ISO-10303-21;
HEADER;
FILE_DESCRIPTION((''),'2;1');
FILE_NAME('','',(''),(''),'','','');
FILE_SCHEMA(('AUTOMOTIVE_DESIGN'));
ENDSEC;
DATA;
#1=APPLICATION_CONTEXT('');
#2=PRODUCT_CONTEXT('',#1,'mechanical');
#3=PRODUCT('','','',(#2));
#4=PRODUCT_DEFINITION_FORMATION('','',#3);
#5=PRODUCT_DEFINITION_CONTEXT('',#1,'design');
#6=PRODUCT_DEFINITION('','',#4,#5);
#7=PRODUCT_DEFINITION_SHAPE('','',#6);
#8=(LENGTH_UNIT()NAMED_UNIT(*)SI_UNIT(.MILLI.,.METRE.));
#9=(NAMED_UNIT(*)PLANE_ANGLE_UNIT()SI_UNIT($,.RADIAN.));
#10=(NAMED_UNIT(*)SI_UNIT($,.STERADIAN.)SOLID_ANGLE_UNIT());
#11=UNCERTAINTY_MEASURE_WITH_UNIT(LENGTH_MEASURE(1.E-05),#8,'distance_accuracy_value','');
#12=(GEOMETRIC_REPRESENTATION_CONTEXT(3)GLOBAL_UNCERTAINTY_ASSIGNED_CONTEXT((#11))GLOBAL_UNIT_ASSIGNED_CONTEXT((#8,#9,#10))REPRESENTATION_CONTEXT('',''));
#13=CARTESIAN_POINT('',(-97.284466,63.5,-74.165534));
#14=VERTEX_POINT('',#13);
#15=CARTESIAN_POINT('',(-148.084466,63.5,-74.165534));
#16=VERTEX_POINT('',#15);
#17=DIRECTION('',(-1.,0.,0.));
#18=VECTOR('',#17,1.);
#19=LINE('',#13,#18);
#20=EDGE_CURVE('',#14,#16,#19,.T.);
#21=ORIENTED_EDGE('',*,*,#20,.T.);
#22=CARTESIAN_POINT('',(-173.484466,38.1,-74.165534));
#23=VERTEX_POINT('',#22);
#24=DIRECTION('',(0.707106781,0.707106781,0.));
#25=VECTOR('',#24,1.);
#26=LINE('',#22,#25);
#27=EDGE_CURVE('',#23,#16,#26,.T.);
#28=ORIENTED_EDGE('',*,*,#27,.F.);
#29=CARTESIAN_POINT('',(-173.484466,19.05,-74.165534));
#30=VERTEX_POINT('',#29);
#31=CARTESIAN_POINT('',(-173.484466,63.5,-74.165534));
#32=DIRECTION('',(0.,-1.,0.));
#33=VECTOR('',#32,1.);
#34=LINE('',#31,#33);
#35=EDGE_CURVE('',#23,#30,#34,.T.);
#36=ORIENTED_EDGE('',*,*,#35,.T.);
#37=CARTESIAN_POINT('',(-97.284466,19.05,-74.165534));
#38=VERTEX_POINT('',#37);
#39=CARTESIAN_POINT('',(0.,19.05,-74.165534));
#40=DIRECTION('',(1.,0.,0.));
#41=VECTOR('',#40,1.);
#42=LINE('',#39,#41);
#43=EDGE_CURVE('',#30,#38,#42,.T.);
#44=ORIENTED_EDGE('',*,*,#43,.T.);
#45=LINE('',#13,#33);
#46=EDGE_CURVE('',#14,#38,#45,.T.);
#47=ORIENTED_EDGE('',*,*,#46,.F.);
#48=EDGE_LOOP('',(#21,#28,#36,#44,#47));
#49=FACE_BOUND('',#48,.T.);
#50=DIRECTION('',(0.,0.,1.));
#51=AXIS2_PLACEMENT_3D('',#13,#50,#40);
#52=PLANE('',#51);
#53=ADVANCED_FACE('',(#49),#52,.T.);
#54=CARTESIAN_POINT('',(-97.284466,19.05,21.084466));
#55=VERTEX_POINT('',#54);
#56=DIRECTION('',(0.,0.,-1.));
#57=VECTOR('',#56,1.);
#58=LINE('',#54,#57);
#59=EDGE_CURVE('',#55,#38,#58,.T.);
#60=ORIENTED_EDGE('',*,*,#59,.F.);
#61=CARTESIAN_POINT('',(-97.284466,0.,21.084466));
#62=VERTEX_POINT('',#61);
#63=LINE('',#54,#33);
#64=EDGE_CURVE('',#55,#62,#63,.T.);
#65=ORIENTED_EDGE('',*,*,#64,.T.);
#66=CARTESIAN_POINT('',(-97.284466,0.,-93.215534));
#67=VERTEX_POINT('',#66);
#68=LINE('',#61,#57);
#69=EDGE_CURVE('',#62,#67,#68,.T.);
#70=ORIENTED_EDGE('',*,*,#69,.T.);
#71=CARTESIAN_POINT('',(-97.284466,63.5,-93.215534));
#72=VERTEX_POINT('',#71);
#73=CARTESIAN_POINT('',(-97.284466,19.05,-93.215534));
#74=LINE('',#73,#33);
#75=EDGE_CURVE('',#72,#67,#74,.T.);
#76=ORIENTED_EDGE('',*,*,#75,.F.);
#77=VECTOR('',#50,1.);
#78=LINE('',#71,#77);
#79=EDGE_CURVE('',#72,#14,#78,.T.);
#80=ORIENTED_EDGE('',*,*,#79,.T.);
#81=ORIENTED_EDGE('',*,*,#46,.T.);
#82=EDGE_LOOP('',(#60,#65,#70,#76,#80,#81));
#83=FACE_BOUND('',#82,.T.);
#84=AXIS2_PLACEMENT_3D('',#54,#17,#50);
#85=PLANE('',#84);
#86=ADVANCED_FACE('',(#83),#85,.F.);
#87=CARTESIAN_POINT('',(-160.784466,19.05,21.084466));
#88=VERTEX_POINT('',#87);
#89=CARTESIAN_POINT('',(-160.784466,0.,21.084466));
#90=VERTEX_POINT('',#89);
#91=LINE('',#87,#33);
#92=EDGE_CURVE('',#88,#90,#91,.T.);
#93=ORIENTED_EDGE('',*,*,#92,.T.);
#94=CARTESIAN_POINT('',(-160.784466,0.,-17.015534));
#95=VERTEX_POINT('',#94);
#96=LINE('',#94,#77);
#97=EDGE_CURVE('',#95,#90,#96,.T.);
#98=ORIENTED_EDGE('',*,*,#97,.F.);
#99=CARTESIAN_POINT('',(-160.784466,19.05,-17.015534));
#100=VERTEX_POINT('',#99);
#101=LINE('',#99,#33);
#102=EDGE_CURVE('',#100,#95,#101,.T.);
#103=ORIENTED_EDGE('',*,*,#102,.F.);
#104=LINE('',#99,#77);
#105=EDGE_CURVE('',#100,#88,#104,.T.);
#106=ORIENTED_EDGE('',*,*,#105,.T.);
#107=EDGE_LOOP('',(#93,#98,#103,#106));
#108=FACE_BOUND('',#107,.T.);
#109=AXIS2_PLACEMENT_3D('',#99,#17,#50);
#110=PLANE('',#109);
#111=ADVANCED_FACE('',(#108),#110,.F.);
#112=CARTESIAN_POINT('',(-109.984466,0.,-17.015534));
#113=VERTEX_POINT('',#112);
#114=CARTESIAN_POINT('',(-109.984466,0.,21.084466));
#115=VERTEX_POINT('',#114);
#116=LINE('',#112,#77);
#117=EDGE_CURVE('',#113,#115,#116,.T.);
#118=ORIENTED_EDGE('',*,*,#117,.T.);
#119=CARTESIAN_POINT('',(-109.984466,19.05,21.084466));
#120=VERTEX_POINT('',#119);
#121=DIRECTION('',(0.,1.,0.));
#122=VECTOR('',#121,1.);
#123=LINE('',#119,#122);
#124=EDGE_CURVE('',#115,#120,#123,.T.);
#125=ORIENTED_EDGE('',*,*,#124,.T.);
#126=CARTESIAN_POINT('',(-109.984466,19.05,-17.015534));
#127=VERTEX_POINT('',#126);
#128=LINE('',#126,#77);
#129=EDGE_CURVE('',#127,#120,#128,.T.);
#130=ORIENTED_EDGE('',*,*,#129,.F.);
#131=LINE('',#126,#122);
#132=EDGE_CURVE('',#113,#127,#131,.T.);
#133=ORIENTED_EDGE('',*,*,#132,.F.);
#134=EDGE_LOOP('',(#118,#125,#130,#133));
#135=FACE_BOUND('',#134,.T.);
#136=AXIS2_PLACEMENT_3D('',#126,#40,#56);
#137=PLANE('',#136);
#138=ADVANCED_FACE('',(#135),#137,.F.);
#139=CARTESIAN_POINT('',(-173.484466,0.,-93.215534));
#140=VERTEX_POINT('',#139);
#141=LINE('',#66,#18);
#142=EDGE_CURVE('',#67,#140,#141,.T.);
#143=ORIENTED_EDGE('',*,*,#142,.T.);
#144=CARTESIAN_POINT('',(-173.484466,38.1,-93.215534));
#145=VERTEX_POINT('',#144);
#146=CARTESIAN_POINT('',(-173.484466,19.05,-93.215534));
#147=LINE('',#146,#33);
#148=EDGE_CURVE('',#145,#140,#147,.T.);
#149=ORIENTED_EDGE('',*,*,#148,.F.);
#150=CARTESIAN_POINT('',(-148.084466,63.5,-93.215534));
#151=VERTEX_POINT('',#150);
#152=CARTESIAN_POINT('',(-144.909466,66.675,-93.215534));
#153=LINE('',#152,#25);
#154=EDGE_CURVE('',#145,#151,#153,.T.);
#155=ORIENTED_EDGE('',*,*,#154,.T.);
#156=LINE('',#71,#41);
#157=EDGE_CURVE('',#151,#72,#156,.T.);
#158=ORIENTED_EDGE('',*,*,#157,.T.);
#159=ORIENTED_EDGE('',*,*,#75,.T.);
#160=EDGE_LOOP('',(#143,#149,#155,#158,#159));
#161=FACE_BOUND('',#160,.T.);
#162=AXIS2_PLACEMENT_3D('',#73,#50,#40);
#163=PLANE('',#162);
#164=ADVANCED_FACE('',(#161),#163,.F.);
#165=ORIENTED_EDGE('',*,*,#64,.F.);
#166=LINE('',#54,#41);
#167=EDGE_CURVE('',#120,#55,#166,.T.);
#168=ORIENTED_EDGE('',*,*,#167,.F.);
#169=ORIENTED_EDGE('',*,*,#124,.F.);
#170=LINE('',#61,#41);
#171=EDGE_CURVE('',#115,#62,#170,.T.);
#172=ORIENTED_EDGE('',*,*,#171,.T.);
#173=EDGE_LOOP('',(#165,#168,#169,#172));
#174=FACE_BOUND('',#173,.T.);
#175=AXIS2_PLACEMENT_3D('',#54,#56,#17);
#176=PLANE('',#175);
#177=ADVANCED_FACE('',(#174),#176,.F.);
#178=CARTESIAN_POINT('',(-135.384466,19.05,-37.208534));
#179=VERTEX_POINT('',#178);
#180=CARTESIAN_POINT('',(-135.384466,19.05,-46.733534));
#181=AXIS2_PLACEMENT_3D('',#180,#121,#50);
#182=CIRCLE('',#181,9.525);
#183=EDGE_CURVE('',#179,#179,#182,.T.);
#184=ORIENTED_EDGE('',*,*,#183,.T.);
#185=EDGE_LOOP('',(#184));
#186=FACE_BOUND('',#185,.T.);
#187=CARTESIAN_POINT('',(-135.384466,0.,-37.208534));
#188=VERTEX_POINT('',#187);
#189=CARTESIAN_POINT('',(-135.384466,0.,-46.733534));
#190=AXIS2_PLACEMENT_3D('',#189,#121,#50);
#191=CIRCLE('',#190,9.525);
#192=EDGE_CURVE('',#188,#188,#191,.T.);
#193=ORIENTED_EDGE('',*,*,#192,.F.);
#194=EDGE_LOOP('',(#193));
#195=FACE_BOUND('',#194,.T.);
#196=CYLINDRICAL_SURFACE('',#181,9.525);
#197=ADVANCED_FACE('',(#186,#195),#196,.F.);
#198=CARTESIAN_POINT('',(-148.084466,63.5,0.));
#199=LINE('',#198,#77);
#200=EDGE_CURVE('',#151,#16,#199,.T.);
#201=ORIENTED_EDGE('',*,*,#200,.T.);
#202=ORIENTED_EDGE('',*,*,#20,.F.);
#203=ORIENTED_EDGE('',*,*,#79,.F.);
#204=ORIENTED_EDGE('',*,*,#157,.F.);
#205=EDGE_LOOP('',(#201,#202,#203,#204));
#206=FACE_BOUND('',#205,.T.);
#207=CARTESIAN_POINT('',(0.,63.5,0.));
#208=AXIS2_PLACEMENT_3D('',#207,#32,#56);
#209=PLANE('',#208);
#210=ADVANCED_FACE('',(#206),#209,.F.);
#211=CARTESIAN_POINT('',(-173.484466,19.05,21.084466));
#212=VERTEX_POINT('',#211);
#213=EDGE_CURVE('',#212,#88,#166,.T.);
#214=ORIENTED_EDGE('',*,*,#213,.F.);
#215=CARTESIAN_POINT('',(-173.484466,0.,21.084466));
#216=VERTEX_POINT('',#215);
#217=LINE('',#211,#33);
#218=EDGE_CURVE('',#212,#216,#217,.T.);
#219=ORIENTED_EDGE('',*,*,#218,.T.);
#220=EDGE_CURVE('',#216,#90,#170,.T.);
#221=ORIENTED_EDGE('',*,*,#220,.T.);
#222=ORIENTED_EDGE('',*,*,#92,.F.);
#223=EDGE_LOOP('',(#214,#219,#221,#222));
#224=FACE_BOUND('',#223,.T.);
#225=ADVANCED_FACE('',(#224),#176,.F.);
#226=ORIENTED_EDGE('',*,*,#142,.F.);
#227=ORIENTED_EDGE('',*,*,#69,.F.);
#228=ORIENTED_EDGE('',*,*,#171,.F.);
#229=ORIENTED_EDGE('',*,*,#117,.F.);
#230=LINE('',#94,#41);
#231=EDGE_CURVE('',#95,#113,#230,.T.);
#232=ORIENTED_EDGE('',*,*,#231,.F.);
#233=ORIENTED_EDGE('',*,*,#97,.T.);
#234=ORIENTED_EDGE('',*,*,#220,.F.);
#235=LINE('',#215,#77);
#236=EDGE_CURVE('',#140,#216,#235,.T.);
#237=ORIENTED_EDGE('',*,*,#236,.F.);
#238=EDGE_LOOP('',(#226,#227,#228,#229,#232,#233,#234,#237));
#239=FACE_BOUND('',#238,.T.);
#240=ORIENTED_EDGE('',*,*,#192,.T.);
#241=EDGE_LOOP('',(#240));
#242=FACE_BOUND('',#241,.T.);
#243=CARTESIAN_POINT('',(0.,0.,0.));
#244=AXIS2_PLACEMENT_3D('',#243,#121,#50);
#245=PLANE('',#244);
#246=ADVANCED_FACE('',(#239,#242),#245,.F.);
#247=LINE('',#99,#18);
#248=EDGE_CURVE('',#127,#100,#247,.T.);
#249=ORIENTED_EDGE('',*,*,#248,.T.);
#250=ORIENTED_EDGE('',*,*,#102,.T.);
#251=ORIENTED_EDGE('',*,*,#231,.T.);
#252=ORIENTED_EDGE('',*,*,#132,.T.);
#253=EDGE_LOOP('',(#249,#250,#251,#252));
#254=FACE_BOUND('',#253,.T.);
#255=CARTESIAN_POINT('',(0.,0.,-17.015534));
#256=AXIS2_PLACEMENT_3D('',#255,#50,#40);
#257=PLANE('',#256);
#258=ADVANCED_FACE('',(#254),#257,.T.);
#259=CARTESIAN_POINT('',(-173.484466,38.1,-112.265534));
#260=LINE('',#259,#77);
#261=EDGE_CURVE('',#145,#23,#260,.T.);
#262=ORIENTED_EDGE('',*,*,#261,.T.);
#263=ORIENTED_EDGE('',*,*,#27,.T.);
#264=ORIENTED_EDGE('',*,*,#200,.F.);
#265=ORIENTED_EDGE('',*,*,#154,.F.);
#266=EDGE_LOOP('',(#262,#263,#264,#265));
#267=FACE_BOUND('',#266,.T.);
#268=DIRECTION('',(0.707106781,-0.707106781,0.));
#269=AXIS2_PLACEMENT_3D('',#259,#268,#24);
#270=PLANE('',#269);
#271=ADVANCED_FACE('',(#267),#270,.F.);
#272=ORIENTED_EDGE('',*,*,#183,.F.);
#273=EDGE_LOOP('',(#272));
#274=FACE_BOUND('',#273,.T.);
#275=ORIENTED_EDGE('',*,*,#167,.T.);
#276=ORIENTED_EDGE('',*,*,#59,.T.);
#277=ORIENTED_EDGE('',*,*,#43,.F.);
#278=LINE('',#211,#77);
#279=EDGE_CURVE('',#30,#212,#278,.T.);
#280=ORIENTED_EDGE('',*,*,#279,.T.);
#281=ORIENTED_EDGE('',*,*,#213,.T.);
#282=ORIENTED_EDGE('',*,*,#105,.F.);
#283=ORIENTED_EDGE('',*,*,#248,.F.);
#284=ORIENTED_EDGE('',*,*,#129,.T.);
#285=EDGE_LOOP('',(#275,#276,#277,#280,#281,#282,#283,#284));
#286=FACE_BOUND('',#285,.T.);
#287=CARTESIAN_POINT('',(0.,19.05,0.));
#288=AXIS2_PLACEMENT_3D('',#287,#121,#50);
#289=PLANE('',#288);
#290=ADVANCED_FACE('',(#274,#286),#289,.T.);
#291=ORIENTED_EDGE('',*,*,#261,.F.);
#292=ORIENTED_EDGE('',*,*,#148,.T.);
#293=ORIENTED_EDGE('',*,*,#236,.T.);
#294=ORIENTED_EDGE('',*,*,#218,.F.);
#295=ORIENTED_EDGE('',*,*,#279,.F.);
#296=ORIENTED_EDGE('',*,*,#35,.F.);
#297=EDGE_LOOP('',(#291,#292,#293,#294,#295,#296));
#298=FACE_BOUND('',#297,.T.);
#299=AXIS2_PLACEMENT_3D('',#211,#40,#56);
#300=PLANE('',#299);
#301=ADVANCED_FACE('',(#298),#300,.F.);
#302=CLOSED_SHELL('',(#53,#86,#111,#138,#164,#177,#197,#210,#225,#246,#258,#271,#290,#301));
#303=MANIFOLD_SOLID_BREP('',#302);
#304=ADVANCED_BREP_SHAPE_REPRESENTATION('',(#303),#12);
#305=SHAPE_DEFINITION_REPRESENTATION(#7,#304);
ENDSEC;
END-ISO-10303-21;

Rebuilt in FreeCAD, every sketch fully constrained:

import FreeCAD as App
import Part
import Sketcher

V = App.Vector
Q = App.Units.Quantity

doc = App.newDocument("Part")
params = doc.addObject("Spreadsheet::Sheet", "Params")
for row, (alias, value) in enumerate([
    ("sketch1_width", "3 in"),
    ("sketch1_height", "4.5 in"),
    ("pad1_length", "0.75 in"),
    ("sketch2_width", "3 in"),
    ("sketch2_height", "0.75 in"),
    ("pad2_length", "2.5 in"),
    ("sketch3_diameter", "0.75 in"),
    ("hole_diameter", "0.75 in"),
    ("sketch4_width", "2 in"),
    ("sketch4_height", "0.75 in"),
    ("pad3_length", "1.5 in"),
    ("sketch5_width", "2 in"),
    ("sketch5_height", "0.75 in"),
    ("pocket1_length", "1.5 in"),
    ("sketch6_width", "1 in"),
    ("pocket2_length", "1.5 in"),
], start=1):
    params.set(f"A{row}", alias)
    params.set(f"B{row}", "=" + value)
    params.setAlias(f"B{row}", alias)

body = doc.addObject("PartDesign::Body", "Body")

# Sketch on XZ plane
sketch1 = body.newObject("Sketcher::SketchObject", "Sketch")
sketch1.AttachmentSupport = (doc.getObject("XZ_Plane"), [""])
sketch1.MapMode = "FlatFace"
sketch1.addGeometry([
    Part.LineSegment(V(-173, -93, 0), V(-173, 21, 0)),
    Part.LineSegment(V(-173, 21, 0), V(-97, 21, 0)),
    Part.LineSegment(V(-97, 21, 0), V(-97, -93, 0)),
    Part.LineSegment(V(-97, -93, 0), V(-173, -93, 0)),
], False)
sketch1.addConstraint([
    Sketcher.Constraint("Coincident", 0, 2, 1, 1),
    Sketcher.Constraint("Coincident", 1, 2, 2, 1),
    Sketcher.Constraint("Coincident", 2, 2, 3, 1),
    Sketcher.Constraint("Coincident", 3, 2, 0, 1),
    Sketcher.Constraint("Vertical", 0),
    Sketcher.Constraint("Horizontal", 1),
    Sketcher.Constraint("Vertical", 2),
    Sketcher.Constraint("Horizontal", 3),
    Sketcher.Constraint("DistanceX", 1, 1, 1, 2, Q("3 in")),
    Sketcher.Constraint("DistanceY", 0, 1, 0, 2, Q("4.5 in")),
    Sketcher.Constraint("DistanceX", 0, 2, -1, 1, Q("173.484466 mm")),
    Sketcher.Constraint("DistanceY", -1, 1, 0, 2, Q("21.084466 mm")),
])
sketch1.setExpression("Constraints[8]", "Params.sketch1_width")
sketch1.setExpression("Constraints[9]", "Params.sketch1_height")
pad1 = body.newObject("PartDesign::Pad", "Pad")
pad1.Profile = sketch1
pad1.setExpression("Length", "Params.pad1_length")
pad1.Reversed = True

# Sketch on XZ plane
sketch2 = body.newObject("Sketcher::SketchObject", "Sketch001")
sketch2.AttachmentSupport = (doc.getObject("XZ_Plane"), [""])
sketch2.MapMode = "FlatFace"
sketch2.addGeometry([
    Part.LineSegment(V(-173, -74, 0), V(-173, -93, 0)),
    Part.LineSegment(V(-173, -93, 0), V(-97, -93, 0)),
    Part.LineSegment(V(-97, -93, 0), V(-97, -74, 0)),
    Part.LineSegment(V(-97, -74, 0), V(-173, -74, 0)),
], False)
sketch2.addConstraint([
    Sketcher.Constraint("Coincident", 0, 2, 1, 1),
    Sketcher.Constraint("Coincident", 1, 2, 2, 1),
    Sketcher.Constraint("Coincident", 2, 2, 3, 1),
    Sketcher.Constraint("Coincident", 3, 2, 0, 1),
    Sketcher.Constraint("Vertical", 0),
    Sketcher.Constraint("Horizontal", 1),
    Sketcher.Constraint("Vertical", 2),
    Sketcher.Constraint("Horizontal", 3),
    Sketcher.Constraint("DistanceX", 1, 1, 1, 2, Q("3 in")),
    Sketcher.Constraint("DistanceY", 0, 2, 0, 1, Q("0.75 in")),
    Sketcher.Constraint("DistanceX", 0, 2, -1, 1, Q("173.484466 mm")),
    Sketcher.Constraint("DistanceY", 0, 2, -1, 1, Q("93.215534 mm")),
])
sketch2.setExpression("Constraints[8]", "Params.sketch2_width")
sketch2.setExpression("Constraints[9]", "Params.sketch2_height")
pad2 = body.newObject("PartDesign::Pad", "Pad001")
pad2.Profile = sketch2
pad2.setExpression("Length", "Params.pad2_length")
pad2.Reversed = True

# Sketch on XZ plane
sketch3 = body.newObject("Sketcher::SketchObject", "Sketch002")
sketch3.AttachmentSupport = (doc.getObject("XZ_Plane"), [""])
sketch3.MapMode = "FlatFace"
sketch3.AttachmentOffset = App.Placement(V(0, 0, -0.75 * 25.4), App.Rotation())
sketch3.addGeometry(Part.Circle(V(-135, -47, 0), V(0, 0, 1), 10), False)
sketch3.addConstraint([
    Sketcher.Constraint("Diameter", 0, Q("0.75 in")),
    Sketcher.Constraint("DistanceX", 0, 3, -1, 1, Q("135.384466 mm")),
    Sketcher.Constraint("DistanceY", 0, 3, -1, 1, Q("46.733534 mm")),
])
sketch3.setExpression("Constraints[0]", "Params.sketch3_diameter")
doc.recompute()
hole = body.newObject("PartDesign::Hole", "Hole")
hole.Profile = sketch3
hole.ThreadType = "None"
hole.setExpression("Diameter", "Params.hole_diameter")
hole.DepthType = "ThroughAll"
hole.Reversed = True

# Sketch on XY plane
sketch4 = body.newObject("Sketcher::SketchObject", "Sketch003")
sketch4.AttachmentSupport = (doc.getObject("XY_Plane"), [""])
sketch4.MapMode = "FlatFace"
sketch4.AttachmentOffset = App.Placement(V(0, 0, 21.084466), App.Rotation())
sketch4.addGeometry([
    Part.LineSegment(V(-161, 19, 0), V(-161, 0, 0)),
    Part.LineSegment(V(-161, 0, 0), V(-110, 0, 0)),
    Part.LineSegment(V(-110, 0, 0), V(-110, 19, 0)),
    Part.LineSegment(V(-110, 19, 0), V(-161, 19, 0)),
], False)
sketch4.addConstraint([
    Sketcher.Constraint("Coincident", 0, 2, 1, 1),
    Sketcher.Constraint("Coincident", 1, 2, 2, 1),
    Sketcher.Constraint("Coincident", 2, 2, 3, 1),
    Sketcher.Constraint("Coincident", 3, 2, 0, 1),
    Sketcher.Constraint("Vertical", 0),
    Sketcher.Constraint("Horizontal", 1),
    Sketcher.Constraint("Vertical", 2),
    Sketcher.Constraint("Horizontal", 3),
    Sketcher.Constraint("PointOnObject", 0, 2, -1),
    Sketcher.Constraint("DistanceX", 1, 1, 1, 2, Q("2 in")),
    Sketcher.Constraint("DistanceY", 0, 2, 0, 1, Q("0.75 in")),
    Sketcher.Constraint("DistanceX", 0, 2, -1, 1, Q("160.784466 mm")),
])
sketch4.setExpression("Constraints[9]", "Params.sketch4_width")
sketch4.setExpression("Constraints[10]", "Params.sketch4_height")
pad3 = body.newObject("PartDesign::Pad", "Pad002")
pad3.Profile = sketch4
pad3.setExpression("Length", "Params.pad3_length")
pad3.Reversed = True

# Sketch on XY plane
sketch5 = body.newObject("Sketcher::SketchObject", "Sketch004")
sketch5.AttachmentSupport = (doc.getObject("XY_Plane"), [""])
sketch5.MapMode = "FlatFace"
sketch5.AttachmentOffset = App.Placement(V(0, 0, 21.084466), App.Rotation())
sketch5.addGeometry([
    Part.LineSegment(V(-161, 19, 0), V(-161, 0, 0)),
    Part.LineSegment(V(-161, 0, 0), V(-110, 0, 0)),
    Part.LineSegment(V(-110, 0, 0), V(-110, 19, 0)),
    Part.LineSegment(V(-110, 19, 0), V(-161, 19, 0)),
], False)
sketch5.addConstraint([
    Sketcher.Constraint("Coincident", 0, 2, 1, 1),
    Sketcher.Constraint("Coincident", 1, 2, 2, 1),
    Sketcher.Constraint("Coincident", 2, 2, 3, 1),
    Sketcher.Constraint("Coincident", 3, 2, 0, 1),
    Sketcher.Constraint("Vertical", 0),
    Sketcher.Constraint("Horizontal", 1),
    Sketcher.Constraint("Vertical", 2),
    Sketcher.Constraint("Horizontal", 3),
    Sketcher.Constraint("PointOnObject", 0, 2, -1),
    Sketcher.Constraint("DistanceX", 1, 1, 1, 2, Q("2 in")),
    Sketcher.Constraint("DistanceY", 0, 2, 0, 1, Q("0.75 in")),
    Sketcher.Constraint("DistanceX", 0, 2, -1, 1, Q("160.784466 mm")),
])
sketch5.setExpression("Constraints[9]", "Params.sketch5_width")
sketch5.setExpression("Constraints[10]", "Params.sketch5_height")
pocket1 = body.newObject("PartDesign::Pocket", "Pocket")
pocket1.Profile = sketch5
pocket1.setExpression("Length", "Params.pocket1_length")

# Sketch on XY plane
sketch6 = body.newObject("Sketcher::SketchObject", "Sketch005")
sketch6.AttachmentSupport = (doc.getObject("XY_Plane"), [""])
sketch6.MapMode = "FlatFace"
sketch6.AttachmentOffset = App.Placement(V(0, 0, -74.165534), App.Rotation())
sketch6.addGeometry([
    Part.LineSegment(V(-173, 38, 0), V(-148, 64, 0)),
    Part.LineSegment(V(-148, 64, 0), V(-173, 64, 0)),
    Part.LineSegment(V(-173, 64, 0), V(-173, 38, 0)),
], False)
sketch6.addConstraint([
    Sketcher.Constraint("Coincident", 0, 2, 1, 1),
    Sketcher.Constraint("Coincident", 1, 2, 2, 1),
    Sketcher.Constraint("Coincident", 2, 2, 0, 1),
    Sketcher.Constraint("Horizontal", 1),
    Sketcher.Constraint("Vertical", 2),
    Sketcher.Constraint("Equal", 1, 2),
    Sketcher.Constraint("DistanceX", 1, 2, 1, 1, Q("1 in")),
    Sketcher.Constraint("DistanceY", -1, 1, 0, 2, Q("2.5 in")),
    Sketcher.Constraint("DistanceX", 0, 2, -1, 1, Q("148.084466 mm")),
])
sketch6.setExpression("Constraints[6]", "Params.sketch6_width")
pocket2 = body.newObject("PartDesign::Pocket", "Pocket001")
pocket2.Profile = sketch6
pocket2.setExpression("Length", "Params.pocket2_length")

doc.recompute()
